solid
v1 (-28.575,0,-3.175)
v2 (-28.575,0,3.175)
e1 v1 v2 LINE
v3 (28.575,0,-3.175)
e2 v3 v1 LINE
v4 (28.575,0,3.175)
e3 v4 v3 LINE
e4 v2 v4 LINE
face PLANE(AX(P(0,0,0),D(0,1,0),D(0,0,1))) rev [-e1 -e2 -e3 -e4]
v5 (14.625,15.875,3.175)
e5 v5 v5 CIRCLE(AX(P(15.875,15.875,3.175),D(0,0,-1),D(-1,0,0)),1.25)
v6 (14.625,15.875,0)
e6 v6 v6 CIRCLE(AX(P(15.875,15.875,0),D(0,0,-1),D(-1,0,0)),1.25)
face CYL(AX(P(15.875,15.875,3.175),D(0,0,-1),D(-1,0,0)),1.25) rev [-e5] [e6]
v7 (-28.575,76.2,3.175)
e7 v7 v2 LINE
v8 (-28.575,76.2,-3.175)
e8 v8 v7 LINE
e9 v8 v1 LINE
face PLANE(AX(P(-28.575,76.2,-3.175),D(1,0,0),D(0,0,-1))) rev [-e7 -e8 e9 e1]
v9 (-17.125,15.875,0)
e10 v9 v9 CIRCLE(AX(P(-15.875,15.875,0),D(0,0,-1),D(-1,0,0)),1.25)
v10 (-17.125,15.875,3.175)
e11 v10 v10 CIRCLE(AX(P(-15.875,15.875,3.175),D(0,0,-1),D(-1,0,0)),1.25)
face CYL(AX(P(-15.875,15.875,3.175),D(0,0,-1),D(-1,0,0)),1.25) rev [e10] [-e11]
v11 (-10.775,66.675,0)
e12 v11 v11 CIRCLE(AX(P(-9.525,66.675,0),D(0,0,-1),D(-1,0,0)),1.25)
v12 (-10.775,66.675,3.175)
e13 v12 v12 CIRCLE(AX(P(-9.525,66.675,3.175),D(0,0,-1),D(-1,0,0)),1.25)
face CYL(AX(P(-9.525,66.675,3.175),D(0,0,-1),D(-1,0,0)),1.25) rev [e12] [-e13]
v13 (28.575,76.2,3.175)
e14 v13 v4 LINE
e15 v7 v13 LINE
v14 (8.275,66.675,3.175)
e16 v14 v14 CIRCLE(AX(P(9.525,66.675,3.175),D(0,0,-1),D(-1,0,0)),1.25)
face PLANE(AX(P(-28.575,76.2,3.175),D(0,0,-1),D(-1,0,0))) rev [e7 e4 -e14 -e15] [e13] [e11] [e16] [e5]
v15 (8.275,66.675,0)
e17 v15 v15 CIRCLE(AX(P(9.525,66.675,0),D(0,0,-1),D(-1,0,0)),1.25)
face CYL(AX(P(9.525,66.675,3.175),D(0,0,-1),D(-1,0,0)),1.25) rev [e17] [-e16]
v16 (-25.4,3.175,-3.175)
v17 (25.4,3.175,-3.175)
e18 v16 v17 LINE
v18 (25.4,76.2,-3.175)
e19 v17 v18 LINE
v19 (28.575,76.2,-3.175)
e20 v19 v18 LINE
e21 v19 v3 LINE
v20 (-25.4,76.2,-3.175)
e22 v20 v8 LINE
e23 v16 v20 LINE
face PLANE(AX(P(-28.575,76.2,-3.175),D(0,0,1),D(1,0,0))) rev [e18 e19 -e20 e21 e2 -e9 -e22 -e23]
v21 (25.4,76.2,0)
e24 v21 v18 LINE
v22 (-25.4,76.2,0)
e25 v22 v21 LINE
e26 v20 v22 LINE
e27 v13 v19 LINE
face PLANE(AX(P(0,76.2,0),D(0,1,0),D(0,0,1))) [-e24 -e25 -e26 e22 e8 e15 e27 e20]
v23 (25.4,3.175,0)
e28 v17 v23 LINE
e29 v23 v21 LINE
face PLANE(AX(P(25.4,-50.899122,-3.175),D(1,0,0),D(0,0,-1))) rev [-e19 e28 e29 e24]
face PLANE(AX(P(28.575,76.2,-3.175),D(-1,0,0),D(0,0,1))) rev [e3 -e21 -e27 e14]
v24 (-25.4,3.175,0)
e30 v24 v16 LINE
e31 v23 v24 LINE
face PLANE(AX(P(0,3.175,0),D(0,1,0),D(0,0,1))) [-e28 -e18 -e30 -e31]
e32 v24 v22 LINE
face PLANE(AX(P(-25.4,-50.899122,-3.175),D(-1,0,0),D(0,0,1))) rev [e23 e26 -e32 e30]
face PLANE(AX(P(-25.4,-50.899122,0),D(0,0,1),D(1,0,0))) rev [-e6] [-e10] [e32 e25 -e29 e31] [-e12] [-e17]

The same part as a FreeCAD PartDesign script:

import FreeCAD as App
import Part
import Sketcher
from FreeCAD import Vector
Q = App.Units.Quantity


def add_polygon(sketch, points):
    """Adds a closed chain of lines whose ends are joined by coincident constraints."""
    first, n = sketch.GeometryCount, len(points)
    for a, b in zip(points, points[1:] + points[:1]):
        sketch.addGeometry(Part.LineSegment(App.Vector(*a, 0), App.Vector(*b, 0)), False)
    for i in range(n):
        sketch.addConstraint(Sketcher.Constraint("Coincident", first + i, 2, first + (i + 1) % n, 1))

doc = App.newDocument("Part")
body = doc.addObject("PartDesign::Body", "Body")

# Sketch on XZ plane
sketch1 = body.newObject("Sketcher::SketchObject", "Sketch")
sketch1.AttachmentSupport = (doc.getObject("XZ_Plane"), [""])
sketch1.MapMode = "FlatFace"
add_polygon(sketch1, [(-29, -3), (-29, 3), (29, 3), (29, -3)])  # lines 0-3
sketch1.addConstraint(Sketcher.Constraint("Vertical", 0))
sketch1.addConstraint(Sketcher.Constraint("Horizontal", 1))
sketch1.addConstraint(Sketcher.Constraint("Vertical", 2))
sketch1.addConstraint(Sketcher.Constraint("Horizontal", 3))
sketch1.addConstraint(Sketcher.Constraint("Symmetric", 0, 2, 2, 2, -1, 1))
sketch1.addConstraint(Sketcher.Constraint("DistanceX", 1, 1, 1, 2, Q("2.25 in")))
sketch1.addConstraint(Sketcher.Constraint("DistanceY", 0, 1, 0, 2, Q("0.25 in")))
pad1 = body.newObject("PartDesign::Pad", "Pad")
pad1.Profile = sketch1
pad1.Length = Q("3 in")
pad1.Reversed = True

# Sketch on XZ plane
sketch2 = body.newObject("Sketcher::SketchObject", "Sketch001")
sketch2.AttachmentSupport = (doc.getObject("XZ_Plane"), [""])
sketch2.MapMode = "FlatFace"
sketch2.AttachmentOffset = App.Placement(Vector(0, 0, -3 * 25.4), App.Rotation())
add_polygon(sketch2, [(-25.4, -3.2), (-25.4, 0), (25.4, 0), (25.4, -3.2)])  # lines 0-3
sketch2.addConstraint(Sketcher.Constraint("Vertical", 0))
sketch2.addConstraint(Sketcher.Constraint("Horizontal", 1))
sketch2.addConstraint(Sketcher.Constraint("Vertical", 2))
sketch2.addConstraint(Sketcher.Constraint("Horizontal", 3))
sketch2.addConstraint(Sketcher.Constraint("Symmetric", 0, 2, 1, 2, -1, 1))
sketch2.addConstraint(Sketcher.Constraint("DistanceX", 1, 1, 1, 2, Q("2 in")))
sketch2.addConstraint(Sketcher.Constraint("DistanceY", 0, 1, 0, 2, Q("0.125 in")))
pocket1 = body.newObject("PartDesign::Pocket", "Pocket")
pocket1.Profile = sketch2
pocket1.Length = Q("2.875 in")
pocket1.Reversed = True

# Sketch on XY plane
sketch3 = body.newObject("Sketcher::SketchObject", "Sketch002")
sketch3.AttachmentSupport = (doc.getObject("XY_Plane"), [""])
sketch3.MapMode = "FlatFace"
sketch3.addGeometry(Part.Circle(Vector(9.5, 66.7, 0), Vector(0, 0, 1), 1.2), False)
sketch3.addGeometry(Part.Circle(Vector(-9.5, 66.7, 0), Vector(0, 0, 1), 1.2), False)
sketch3.addGeometry(Part.Circle(Vector(15.9, 15.9, 0), Vector(0, 0, 1), 1.2), False)
sketch3.addGeometry(Part.Circle(Vector(-15.9, 15.9, 0), Vector(0, 0, 1), 1.2), False)
sketch3.addConstraint(Sketcher.Constraint("Equal", 0, 1))
sketch3.addConstraint(Sketcher.Constraint("Equal", 1, 2))
sketch3.addConstraint(Sketcher.Constraint("Equal", 2, 3))
sketch3.addConstraint(Sketcher.Constraint("Symmetric", 0, 3, 1, 3, -2))
sketch3.addConstraint(Sketcher.Constraint("Symmetric", 2, 3, 3, 3, -2))
sketch3.addConstraint(Sketcher.Constraint("DistanceY", 2, 3, 0, 3, Q("2 in")))
sketch3.addConstraint(Sketcher.Constraint("DistanceX", 1, 3, 2, 3, Q("1 in")))
sketch3.addConstraint(Sketcher.Constraint("Diameter", 0, 2.5))
sketch3.addConstraint(Sketcher.Constraint("DistanceX", 1, 3, 0, 3, Q("0.75 in")))
sketch3.addConstraint(Sketcher.Constraint("DistanceY", -1, 1, 0, 3, Q("2.625 in")))
pocket2 = body.newObject("PartDesign::Pocket", "Pocket001")
pocket2.Profile = sketch3
pocket2.Type = "ThroughAll"
pocket2.Reversed = True

doc.recompute()
